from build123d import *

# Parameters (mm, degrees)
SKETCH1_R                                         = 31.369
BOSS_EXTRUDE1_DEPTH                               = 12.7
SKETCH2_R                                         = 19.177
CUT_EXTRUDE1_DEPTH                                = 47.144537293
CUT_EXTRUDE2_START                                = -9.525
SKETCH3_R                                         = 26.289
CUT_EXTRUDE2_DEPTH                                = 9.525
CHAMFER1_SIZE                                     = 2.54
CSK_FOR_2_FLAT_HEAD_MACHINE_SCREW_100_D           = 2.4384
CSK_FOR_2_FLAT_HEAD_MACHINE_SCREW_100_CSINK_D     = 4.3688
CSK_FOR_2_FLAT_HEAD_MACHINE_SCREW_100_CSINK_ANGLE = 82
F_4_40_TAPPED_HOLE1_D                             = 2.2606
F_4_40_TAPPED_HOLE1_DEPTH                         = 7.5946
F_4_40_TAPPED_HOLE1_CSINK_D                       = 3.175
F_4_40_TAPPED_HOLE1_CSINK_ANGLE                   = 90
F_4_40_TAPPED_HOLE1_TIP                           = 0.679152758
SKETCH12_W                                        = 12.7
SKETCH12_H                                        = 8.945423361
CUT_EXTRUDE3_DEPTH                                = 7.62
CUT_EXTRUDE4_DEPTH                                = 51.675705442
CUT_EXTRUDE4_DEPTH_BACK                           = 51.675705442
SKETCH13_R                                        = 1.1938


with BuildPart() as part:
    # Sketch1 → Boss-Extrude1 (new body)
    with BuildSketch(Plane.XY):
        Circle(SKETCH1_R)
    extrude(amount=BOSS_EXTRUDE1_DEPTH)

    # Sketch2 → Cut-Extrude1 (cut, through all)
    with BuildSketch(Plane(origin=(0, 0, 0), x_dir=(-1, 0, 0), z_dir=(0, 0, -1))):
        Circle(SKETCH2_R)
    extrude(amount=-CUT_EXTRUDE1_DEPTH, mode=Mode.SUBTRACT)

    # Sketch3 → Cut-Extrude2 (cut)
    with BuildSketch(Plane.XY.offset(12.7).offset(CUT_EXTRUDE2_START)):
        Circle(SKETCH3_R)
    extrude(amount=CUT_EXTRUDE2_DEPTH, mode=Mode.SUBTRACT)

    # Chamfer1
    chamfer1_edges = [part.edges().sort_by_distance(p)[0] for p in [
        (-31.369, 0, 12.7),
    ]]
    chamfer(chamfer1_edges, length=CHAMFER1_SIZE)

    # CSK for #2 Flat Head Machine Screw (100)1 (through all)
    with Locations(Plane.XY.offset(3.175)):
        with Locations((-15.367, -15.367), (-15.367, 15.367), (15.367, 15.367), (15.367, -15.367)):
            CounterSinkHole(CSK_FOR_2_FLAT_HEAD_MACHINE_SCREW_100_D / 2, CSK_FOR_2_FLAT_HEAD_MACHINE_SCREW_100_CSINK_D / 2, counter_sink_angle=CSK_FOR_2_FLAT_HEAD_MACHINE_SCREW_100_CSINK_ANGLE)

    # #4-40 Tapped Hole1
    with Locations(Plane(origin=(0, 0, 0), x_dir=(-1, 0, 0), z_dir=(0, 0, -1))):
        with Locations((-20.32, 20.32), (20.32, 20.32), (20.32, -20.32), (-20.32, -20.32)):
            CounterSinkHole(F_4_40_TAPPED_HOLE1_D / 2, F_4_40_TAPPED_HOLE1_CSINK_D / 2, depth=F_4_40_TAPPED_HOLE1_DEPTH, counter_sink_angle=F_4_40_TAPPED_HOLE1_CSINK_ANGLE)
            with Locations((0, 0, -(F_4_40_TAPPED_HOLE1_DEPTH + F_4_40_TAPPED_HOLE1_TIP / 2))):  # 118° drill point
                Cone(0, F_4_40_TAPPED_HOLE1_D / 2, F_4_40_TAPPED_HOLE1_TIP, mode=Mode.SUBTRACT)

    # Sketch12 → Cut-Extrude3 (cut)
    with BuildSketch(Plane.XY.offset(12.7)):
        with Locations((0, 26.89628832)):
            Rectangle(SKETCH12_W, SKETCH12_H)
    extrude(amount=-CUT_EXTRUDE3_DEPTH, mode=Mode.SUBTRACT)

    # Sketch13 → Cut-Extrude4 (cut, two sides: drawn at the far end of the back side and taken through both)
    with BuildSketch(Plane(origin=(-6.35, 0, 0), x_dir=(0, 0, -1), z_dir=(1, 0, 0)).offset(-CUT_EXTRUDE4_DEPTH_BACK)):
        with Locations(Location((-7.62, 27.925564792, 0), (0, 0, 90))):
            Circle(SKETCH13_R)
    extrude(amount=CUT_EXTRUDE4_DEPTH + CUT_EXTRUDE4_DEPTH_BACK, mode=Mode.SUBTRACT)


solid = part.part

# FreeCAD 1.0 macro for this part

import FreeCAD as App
import Part
import Sketcher
from FreeCAD import Vector
Q = App.Units.Quantity


def edges_at(feature, points):
    """Names of the edges that pass closest to the given points."""
    edges = feature.Shape.Edges
    near = lambda p: min(range(len(edges)), key=lambda i: edges[i].distToShape(Part.Vertex(*p))[0])
    return sorted({f"Edge{near(p) + 1}" for p in points})

doc = App.newDocument("Part")
params = doc.addObject("Spreadsheet::Sheet", "Params")
for row, (alias, value) in enumerate([
    ("sketch1_diameter", "2.47 in"),
    ("pad1_length", "0.5 in"),
    ("sketch2_diameter", "1.51 in"),
    ("sketch3_diameter", "2.07 in"),
    ("pocket2_length", "0.375 in"),
    ("chamfer_size", "0.1 in"),
    ("sketch4_diameter", "0.096 in"),
    ("hole_diameter", "0.096 in"),
    ("hole_csink_diameter", "0.172 in"),
    ("sketch5_diameter", "0.089 in"),
    ("hole2_diameter", "0.089 in"),
    ("hole2_depth", "0.299 in"),
    ("hole2_csink_diameter", "0.125 in"),
    ("sketch6_width", "0.5 in"),
    ("pocket3_length", "0.3 in"),
    ("sketch7_diameter", "0.094 in"),
], start=1):
    params.set(f"A{row}", alias)
    params.set(f"B{row}", "=" + value)
    params.setAlias(f"B{row}", alias)

body = doc.addObject("PartDesign::Body", "Body")

# Sketch on XY plane
sketch1 = doc.addObject("Sketcher::SketchObject", "Sketch")
body.addObject(sketch1)
sketch1.AttachmentSupport = (doc.XY_Plane, [""])
sketch1.MapMode = "FlatFace"
sketch1.addGeometry(Part.Circle(Vector(0, 0, 0), Vector(0, 0, 1), 31), False)
sketch1.addConstraint(Sketcher.Constraint("Coincident", 0, 3, -1, 1))
sketch1.addConstraint(Sketcher.Constraint("Diameter", 0, Q("2.47 in")))
sketch1.setExpression("Constraints[1]", "Params.sketch1_diameter")
pad1 = doc.addObject("PartDesign::Pad", "Pad")
body.addObject(pad1)
pad1.Profile = sketch1
pad1.setExpression("Length", "Params.pad1_length")

# Sketch on XY plane
sketch2 = doc.addObject("Sketcher::SketchObject", "Sketch001")
body.addObject(sketch2)
sketch2.AttachmentSupport = (doc.XY_Plane, [""])
sketch2.MapMode = "FlatFace"
sketch2.addGeometry(Part.Circle(Vector(0, 0, 0), Vector(0, 0, 1), 19), False)
sketch2.addConstraint(Sketcher.Constraint("Coincident", 0, 3, -1, 1))
sketch2.addConstraint(Sketcher.Constraint("Diameter", 0, Q("1.51 in")))
sketch2.setExpression("Constraints[1]", "Params.sketch2_diameter")
pocket1 = doc.addObject("PartDesign::Pocket", "Pocket")
body.addObject(pocket1)
pocket1.Profile = sketch2
pocket1.Type = "ThroughAll"
pocket1.Reversed = True

# Sketch on XY plane
sketch3 = doc.addObject("Sketcher::SketchObject", "Sketch002")
body.addObject(sketch3)
sketch3.AttachmentSupport = (doc.XY_Plane, [""])
sketch3.MapMode = "FlatFace"
sketch3.AttachmentOffset = App.Placement(Vector(0, 0, 0.125 * 25.4), App.Rotation())
sketch3.addGeometry(Part.Circle(Vector(0, 0, 0), Vector(0, 0, 1), 26), False)
sketch3.addConstraint(Sketcher.Constraint("Coincident", 0, 3, -1, 1))
sketch3.addConstraint(Sketcher.Constraint("Diameter", 0, Q("2.07 in")))
sketch3.setExpression("Constraints[1]", "Params.sketch3_diameter")
pocket2 = doc.addObject("PartDesign::Pocket", "Pocket001")
body.addObject(pocket2)
pocket2.Profile = sketch3
pocket2.setExpression("Length", "Params.pocket2_length")
pocket2.Reversed = True
doc.recompute()

chamfer = doc.addObject("PartDesign::Chamfer", "Chamfer")
body.addObject(chamfer)
chamfer.Base = (pocket2, edges_at(pocket2, [(-31.369, 0, 12.7)]))
chamfer.setExpression("Size", "Params.chamfer_size")

# Sketch on XY plane
sketch4 = doc.addObject("Sketcher::SketchObject", "Sketch003")
body.addObject(sketch4)
sketch4.AttachmentSupport = (doc.XY_Plane, [""])
sketch4.MapMode = "FlatFace"
sketch4.AttachmentOffset = App.Placement(Vector(0, 0, 0.125 * 25.4), App.Rotation())
sketch4.addGeometry(Part.Circle(Vector(-15.4, -15.4, 0), Vector(0, 0, 1), 1.2), False)
sketch4.addGeometry(Part.Circle(Vector(-15.4, 15.4, 0), Vector(0, 0, 1), 1.2), False)
sketch4.addGeometry(Part.Circle(Vector(15.4, 15.4, 0), Vector(0, 0, 1), 1.2), False)
sketch4.addGeometry(Part.Circle(Vector(15.4, -15.4, 0), Vector(0, 0, 1), 1.2), False)
sketch4.addConstraint(Sketcher.Constraint("Equal", 0, 1))
sketch4.addConstraint(Sketcher.Constraint("Equal", 1, 2))
sketch4.addConstraint(Sketcher.Constraint("Equal", 2, 3))
sketch4.addConstraint(Sketcher.Constraint("Symmetric", 0, 3, 2, 3, -1, 1))
sketch4.addConstraint(Sketcher.Constraint("Symmetric", 1, 3, 3, 3, -1, 1))
sketch4.addConstraint(Sketcher.Constraint("Symmetric", 1, 3, 2, 3, -2))
sketch4.addConstraint(Sketcher.Constraint("Diameter", 0, Q("0.096 in")))
sketch4.addConstraint(Sketcher.Constraint("DistanceY", 0, 3, 1, 3, Q("1.21 in")))
sketch4.addConstraint(Sketcher.Constraint("DistanceX", 1, 3, 2, 3, Q("1.21 in")))
sketch4.setExpression("Constraints[6]", "Params.sketch4_diameter")
doc.recompute()
hole = doc.addObject("PartDesign::Hole", "Hole")
body.addObject(hole)
hole.Profile = sketch4
hole.ThreadType = "None"
hole.setExpression("Diameter", "Params.hole_diameter")
hole.DepthType = "ThroughAll"
hole.HoleCutType = "Countersink"
hole.setExpression("HoleCutDiameter", "Params.hole_csink_diameter")
hole.HoleCutCountersinkAngle = 82

# Sketch on XY plane
sketch5 = doc.addObject("Sketcher::SketchObject", "Sketch004")
body.addObject(sketch5)
sketch5.AttachmentSupport = (doc.XY_Plane, [""])
sketch5.MapMode = "FlatFace"
sketch5.addGeometry(Part.Circle(Vector(20.3, 20.3, 0), Vector(0, 0, 1), 1.1), False)
sketch5.addGeometry(Part.Circle(Vector(-20.3, 20.3, 0), Vector(0, 0, 1), 1.1), False)
sketch5.addGeometry(Part.Circle(Vector(-20.3, -20.3, 0), Vector(0, 0, 1), 1.1), False)
sketch5.addGeometry(Part.Circle(Vector(20.3, -20.3, 0), Vector(0, 0, 1), 1.1), False)
sketch5.addConstraint(Sketcher.Constraint("Equal", 0, 1))
sketch5.addConstraint(Sketcher.Constraint("Equal", 1, 2))
sketch5.addConstraint(Sketcher.Constraint("Equal", 2, 3))
sketch5.addConstraint(Sketcher.Constraint("Symmetric", 0, 3, 2, 3, -1, 1))
sketch5.addConstraint(Sketcher.Constraint("Symmetric", 1, 3, 3, 3, -1, 1))
sketch5.addConstraint(Sketcher.Constraint("Symmetric", 0, 3, 1, 3, -2))
sketch5.addConstraint(Sketcher.Constraint("Diameter", 0, Q("0.089 in")))
sketch5.addConstraint(Sketcher.Constraint("DistanceX", -1, 1, 0, 3, Q("0.8 in")))
sketch5.addConstraint(Sketcher.Constraint("DistanceY", -1, 1, 0, 3, Q("0.8 in")))
sketch5.setExpression("Constraints[6]", "Params.sketch5_diameter")
doc.recompute()
hole2 = doc.addObject("PartDesign::Hole", "Hole001")
body.addObject(hole2)
hole2.Profile = sketch5
hole2.ThreadType = "None"
hole2.setExpression("Diameter", "Params.hole2_diameter")
hole2.DepthType = "Dimension"
hole2.setExpression("Depth", "Params.hole2_depth")
hole2.DrillPoint = "Angled"
hole2.DrillPointAngle = 118
hole2.HoleCutType = "Countersink"
hole2.setExpression("HoleCutDiameter", "Params.hole2_csink_diameter")
hole2.HoleCutCountersinkAngle = 90
hole2.Reversed = True

# Sketch on XY plane
sketch6 = doc.addObject("Sketcher::SketchObject", "Sketch005")
body.addObject(sketch6)
sketch6.AttachmentSupport = (doc.XY_Plane, [""])
sketch6.MapMode = "FlatFace"
sketch6.AttachmentOffset = App.Placement(Vector(0, 0, 0.5 * 25.4), App.Rotation())
sketch6.addGeometry(Part.LineSegment(Vector(-6, 31, 0), Vector(-6, 22, 0)), False)
sketch6.addGeometry(Part.LineSegment(Vector(-6, 22, 0), Vector(6, 22, 0)), False)
sketch6.addGeometry(Part.LineSegment(Vector(6, 22, 0), Vector(6, 31, 0)), False)
sketch6.addGeometry(Part.LineSegment(Vector(6, 31, 0), Vector(-6, 31, 0)), False)
sketch6.addConstraint(Sketcher.Constraint("Coincident", 0, 2, 1, 1))
sketch6.addConstraint(Sketcher.Constraint("Coincident", 1, 2, 2, 1))
sketch6.addConstraint(Sketcher.Constraint("Coincident", 2, 2, 3, 1))
sketch6.addConstraint(Sketcher.Constraint("Coincident", 3, 2, 0, 1))
sketch6.addConstraint(Sketcher.Constraint("Vertical", 0))
sketch6.addConstraint(Sketcher.Constraint("Horizontal", 1))
sketch6.addConstraint(Sketcher.Constraint("Vertical", 2))
sketch6.addConstraint(Sketcher.Constraint("Horizontal", 3))
sketch6.addConstraint(Sketcher.Constraint("DistanceX", 1, 1, 1, 2, Q("0.5 in")))
sketch6.addConstraint(Sketcher.Constraint("DistanceX", 0, 2, -1, 1, Q("0.25 in")))
sketch6.addConstraint(Sketcher.Constraint("DistanceY", -1, 1, 2, 2, Q("1.235 in")))
sketch6.addConstraint(Sketcher.Constraint("DistanceY", 0, 2, 0, 1, Q("8.945423 mm")))
sketch6.setExpression("Constraints[8]", "Params.sketch6_width")
pocket3 = doc.addObject("PartDesign::Pocket", "Pocket002")
body.addObject(pocket3)
pocket3.Profile = sketch6
pocket3.setExpression("Length", "Params.pocket3_length")

# Sketch on YZ plane
sketch7 = doc.addObject("Sketcher::SketchObject", "Sketch006")
body.addObject(sketch7)
sketch7.AttachmentSupport = (doc.YZ_Plane, [""])
sketch7.MapMode = "FlatFace"
sketch7.AttachmentOffset = App.Placement(Vector(0, 0, -0.25 * 25.4), App.Rotation())
sketch7.addGeometry(Part.Circle(Vector(27.9, 7.6, 0), Vector(0, 0, 1), 1.2), False)
sketch7.addConstraint(Sketcher.Constraint("Diameter", 0, Q("0.094 in")))
sketch7.addConstraint(Sketcher.Constraint("DistanceY", -1, 1, 0, 3, Q("0.3 in")))
sketch7.addConstraint(Sketcher.Constraint("DistanceX", -1, 1, 0, 3, Q("27.925565 mm")))
sketch7.setExpression("Constraints[0]", "Params.sketch7_diameter")
pocket4 = doc.addObject("PartDesign::Pocket", "Pocket003")
body.addObject(pocket4)
pocket4.Profile = sketch7
pocket4.Type = "ThroughAll"
pocket4.Midplane = True

doc.recompute()
